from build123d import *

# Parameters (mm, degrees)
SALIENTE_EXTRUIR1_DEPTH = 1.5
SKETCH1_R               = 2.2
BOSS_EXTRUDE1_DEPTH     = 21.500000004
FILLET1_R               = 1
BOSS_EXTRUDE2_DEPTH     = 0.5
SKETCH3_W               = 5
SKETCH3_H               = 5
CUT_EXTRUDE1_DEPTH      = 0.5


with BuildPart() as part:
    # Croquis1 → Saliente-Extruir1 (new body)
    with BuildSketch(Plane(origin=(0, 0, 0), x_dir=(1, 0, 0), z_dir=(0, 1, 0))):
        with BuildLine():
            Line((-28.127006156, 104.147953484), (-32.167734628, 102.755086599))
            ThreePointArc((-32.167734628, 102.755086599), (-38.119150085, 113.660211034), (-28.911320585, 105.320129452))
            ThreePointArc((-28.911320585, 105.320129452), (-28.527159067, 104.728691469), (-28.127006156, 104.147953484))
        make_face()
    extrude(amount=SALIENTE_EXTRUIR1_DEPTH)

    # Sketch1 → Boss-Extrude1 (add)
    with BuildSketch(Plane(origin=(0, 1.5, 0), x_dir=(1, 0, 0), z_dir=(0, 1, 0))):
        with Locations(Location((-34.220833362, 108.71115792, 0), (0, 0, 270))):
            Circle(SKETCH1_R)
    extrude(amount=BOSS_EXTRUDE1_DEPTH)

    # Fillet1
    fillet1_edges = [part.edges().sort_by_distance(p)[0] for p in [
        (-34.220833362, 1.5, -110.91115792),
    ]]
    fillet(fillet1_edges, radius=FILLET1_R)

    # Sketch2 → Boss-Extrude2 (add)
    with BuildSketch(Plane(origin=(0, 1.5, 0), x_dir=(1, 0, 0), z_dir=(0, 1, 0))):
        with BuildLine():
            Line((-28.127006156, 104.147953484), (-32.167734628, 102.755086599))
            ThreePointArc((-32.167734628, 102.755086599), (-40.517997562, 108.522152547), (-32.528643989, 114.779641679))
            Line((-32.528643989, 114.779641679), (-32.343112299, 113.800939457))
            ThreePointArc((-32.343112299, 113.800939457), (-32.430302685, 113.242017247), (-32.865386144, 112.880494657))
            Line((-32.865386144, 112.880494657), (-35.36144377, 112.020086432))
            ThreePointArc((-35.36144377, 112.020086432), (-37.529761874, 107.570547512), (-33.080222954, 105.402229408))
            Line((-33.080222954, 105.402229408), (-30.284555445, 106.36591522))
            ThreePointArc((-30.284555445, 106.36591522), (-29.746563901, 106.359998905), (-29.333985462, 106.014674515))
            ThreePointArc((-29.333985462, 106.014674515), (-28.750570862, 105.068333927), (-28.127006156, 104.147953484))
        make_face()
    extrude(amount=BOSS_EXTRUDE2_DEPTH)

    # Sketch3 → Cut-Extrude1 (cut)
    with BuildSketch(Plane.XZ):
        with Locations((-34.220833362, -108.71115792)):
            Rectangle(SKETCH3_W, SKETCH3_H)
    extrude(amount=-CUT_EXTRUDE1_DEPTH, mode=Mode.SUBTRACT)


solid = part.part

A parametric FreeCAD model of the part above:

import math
import FreeCAD as App
import Part
import Sketcher


def edges_at(feature, points):
    """Names of the edges that pass closest to the given points."""
    edges = feature.Shape.Edges
    near = lambda p: min(range(len(edges)), key=lambda i: edges[i].distToShape(Part.Vertex(*p))[0])
    return sorted({f"Edge{near(p) + 1}" for p in points})


def add_polygon(sketch, points):
    """Adds a closed chain of lines whose ends are joined by coincident constraints."""
    first, n = sketch.GeometryCount, len(points)
    for a, b in zip(points, points[1:] + points[:1]):
        sketch.addGeometry(Part.LineSegment(App.Vector(*a, 0), App.Vector(*b, 0)), False)
    for i in range(n):
        sketch.addConstraint(Sketcher.Constraint("Coincident", first + i, 2, first + (i + 1) % n, 1))

doc = App.newDocument("Part")
body = doc.addObject("PartDesign::Body", "Body")

# Sketch on XZ plane
sketch1 = body.newObject("Sketcher::SketchObject", "Sketch")
sketch1.AttachmentSupport = (doc.getObject("XZ_Plane"), [""])
sketch1.MapMode = "FlatFace"
sketch1.addGeometry(Part.LineSegment(App.Vector(-32.2, -102.8, 0), App.Vector(-28.1, -104.1, 0)), False)
sketch1.addGeometry(Part.ArcOfCircle(Part.Circle(App.Vector(-7, -119.1, 0), App.Vector(0, 0, 1), 25.9), math.radians(144.65), math.radians(147.78)), False)
sketch1.addGeometry(Part.ArcOfCircle(Part.Circle(App.Vector(-34.2, -108.7, 0), App.Vector(0, 0, 1), 6.3), math.radians(71), math.radians(393)), False)
sketch1.addConstraint(Sketcher.Constraint("Coincident", 0, 2, 1, 1))
sketch1.addConstraint(Sketcher.Constraint("Coincident", 1, 2, 2, 2))
sketch1.addConstraint(Sketcher.Constraint("Tangent", 2, 1, 0, 1))
sketch1.addConstraint(Sketcher.Constraint("Radius", 2, 6.3))
sketch1.addConstraint(Sketcher.Constraint("Radius", 1, 25.850005))
sketch1.addConstraint(Sketcher.Constraint("DistanceX", 2, 3, 2, 1, 2.053099))
sketch1.addConstraint(Sketcher.Constraint("DistanceX", 1, 3, -1, 1, 7.042911))
sketch1.addConstraint(Sketcher.Constraint("DistanceX", 1, 2, -1, 1, 28.911321))
sketch1.addConstraint(Sketcher.Constraint("DistanceY", 1, 2, -1, 1, 105.320129))
sketch1.addConstraint(Sketcher.Constraint("DistanceY", 1, 3, 0, 2, 14.956059))
pad1 = body.newObject("PartDesign::Pad", "Pad")
pad1.Profile = sketch1
pad1.Length = 1.5
pad1.Reversed = True

# Sketch on XZ plane
sketch2 = body.newObject("Sketcher::SketchObject", "Sketch001")
sketch2.AttachmentSupport = (doc.getObject("XZ_Plane"), [""])
sketch2.MapMode = "FlatFace"
sketch2.AttachmentOffset = App.Placement(App.Vector(0, 0, -1.5), App.Rotation())
sketch2.addGeometry(Part.Circle(App.Vector(-34.2, -108.7, 0), App.Vector(0, 0, 1), 2.2), False)
sketch2.addConstraint(Sketcher.Constraint("Diameter", 0, 4.4))
sketch2.addConstraint(Sketcher.Constraint("DistanceX", 0, 3, -1, 1, 34.220833))
sketch2.addConstraint(Sketcher.Constraint("DistanceY", 0, 3, -1, 1, 108.711158))
pad2 = body.newObject("PartDesign::Pad", "Pad001")
pad2.Profile = sketch2
pad2.Length = 21.5
pad2.Reversed = True
doc.recompute()

fillet = body.newObject("PartDesign::Fillet", "Fillet")
fillet.Base = (pad2, edges_at(pad2, [(-34.221, 1.5, -110.911)]))
fillet.Radius = 1

# Sketch on XZ plane
sketch3 = body.newObject("Sketcher::SketchObject", "Sketch002")
sketch3.AttachmentSupport = (doc.getObject("XZ_Plane"), [""])
sketch3.MapMode = "FlatFace"
sketch3.AttachmentOffset = App.Placement(App.Vector(0, 0, -1.5), App.Rotation())
sketch3.addGeometry(Part.LineSegment(App.Vector(-32.2, -102.8, 0), App.Vector(-28.1, -104.1, 0)), False)
sketch3.addGeometry(Part.ArcOfCircle(Part.Circle(App.Vector(-7, -119.1, 0), App.Vector(0, 0, 1), 25.9), math.radians(144.65), math.radians(149.58)), False)
sketch3.addGeometry(Part.ArcOfCircle(Part.Circle(App.Vector(-30, -105.6, 0), App.Vector(0, 0, 1), 0.8), math.radians(-109), math.radians(-30)), False)
sketch3.addGeometry(Part.LineSegment(App.Vector(-30.3, -106.4, 0), App.Vector(-33.1, -105.4, 0)), False)
sketch3.addGeometry(Part.ArcOfCircle(Part.Circle(App.Vector(-34.2, -108.7, 0), App.Vector(0, 0, 1), 3.5), math.radians(71), math.radians(251)), False)
sketch3.addGeometry(Part.LineSegment(App.Vector(-35.4, -112, 0), App.Vector(-32.9, -112.9, 0)), False)
sketch3.addGeometry(Part.ArcOfCircle(Part.Circle(App.Vector(-33.1, -113.6, 0), App.Vector(0, 0, 1), 0.8), math.radians(-12), math.radians(71)), False)
sketch3.addGeometry(Part.LineSegment(App.Vector(-32.3, -113.8, 0), App.Vector(-32.5, -114.8, 0)), False)
sketch3.addGeometry(Part.ArcOfCircle(Part.Circle(App.Vector(-34.2, -108.7, 0), App.Vector(0, 0, 1), 6.3), math.radians(71), math.radians(286)), False)
sketch3.addConstraint(Sketcher.Constraint("Coincident", 0, 2, 1, 1))
sketch3.addConstraint(Sketcher.Constraint("Tangent", 1, 2, 2, 2))
sketch3.addConstraint(Sketcher.Constraint("Tangent", 2, 1, 3, 1))
sketch3.addConstraint(Sketcher.Constraint("Tangent", 3, 2, 4, 1))
sketch3.addConstraint(Sketcher.Constraint("Tangent", 4, 2, 5, 1))
sketch3.addConstraint(Sketcher.Constraint("Tangent", 5, 2, 6, 2))
sketch3.addConstraint(Sketcher.Constraint("Coincident", 6, 1, 7, 1))
sketch3.addConstraint(Sketcher.Constraint("Coincident", 7, 2, 8, 2))
sketch3.addConstraint(Sketcher.Constraint("Tangent", 8, 1, 0, 1))
sketch3.addConstraint(Sketcher.Constraint("Coincident", 8, 3, 4, 3))
sketch3.addConstraint(Sketcher.Constraint("Equal", 2, 6))
sketch3.addConstraint(Sketcher.Constraint("Parallel", 0, 3))
sketch3.addConstraint(Sketcher.Constraint("Parallel", 3, 5))
sketch3.addConstraint(Sketcher.Constraint("Radius", 2, 0.8))
sketch3.addConstraint(Sketcher.Constraint("Radius", 4, 3.5))
sketch3.addConstraint(Sketcher.Constraint("Radius", 8, 6.3))
sketch3.addConstraint(Sketcher.Constraint("Radius", 1, 25.850005))
sketch3.addConstraint(Sketcher.Constraint("Distance", 3, 2.957101))
sketch3.addConstraint(Sketcher.Constraint("DistanceX", 4, 2, 7, 2, 2.8328))
sketch3.addConstraint(Sketcher.Constraint("Distance", 5, 2.640191))
sketch3.addConstraint(Sketcher.Constraint("DistanceX", 1, 3, -1, 1, 7.042911))
sketch3.addConstraint(Sketcher.Constraint("DistanceY", 2, 3, -1, 1, 105.609589))
sketch3.addConstraint(Sketcher.Constraint("DistanceY", 6, 3, -1, 1, 113.636821))
sketch3.addConstraint(Sketcher.Constraint("DistanceY", 6, 1, -1, 1, 113.800939))
sketch3.addConstraint(Sketcher.Constraint("DistanceY", 1, 3, 6, 3, 5.467191))
pad3 = body.newObject("PartDesign::Pad", "Pad002")
pad3.Profile = sketch3
pad3.Length = 0.5
pad3.Reversed = True

# Sketch on XZ plane
sketch4 = body.newObject("Sketcher::SketchObject", "Sketch003")
sketch4.AttachmentSupport = (doc.getObject("XZ_Plane"), [""])
sketch4.MapMode = "FlatFace"
add_polygon(sketch4, [(-37, -106), (-37, -111), (-32, -111), (-32, -106)])  # lines 0-3
sketch4.addConstraint(Sketcher.Constraint("Vertical", 0))
sketch4.addConstraint(Sketcher.Constraint("Horizontal", 1))
sketch4.addConstraint(Sketcher.Constraint("Vertical", 2))
sketch4.addConstraint(Sketcher.Constraint("Horizontal", 3))
sketch4.addConstraint(Sketcher.Constraint("Equal", 3, 0))
sketch4.addConstraint(Sketcher.Constraint("DistanceX", 1, 1, 1, 2, 5.0))
sketch4.addConstraint(Sketcher.Constraint("DistanceX", 0, 2, -1, 1, 36.720833))
sketch4.addConstraint(Sketcher.Constraint("DistanceY", 0, 2, -1, 1, 111.211158))
pocket1 = body.newObject("PartDesign::Pocket", "Pocket")
pocket1.Profile = sketch4
pocket1.Length = 0.5

doc.recompute()
